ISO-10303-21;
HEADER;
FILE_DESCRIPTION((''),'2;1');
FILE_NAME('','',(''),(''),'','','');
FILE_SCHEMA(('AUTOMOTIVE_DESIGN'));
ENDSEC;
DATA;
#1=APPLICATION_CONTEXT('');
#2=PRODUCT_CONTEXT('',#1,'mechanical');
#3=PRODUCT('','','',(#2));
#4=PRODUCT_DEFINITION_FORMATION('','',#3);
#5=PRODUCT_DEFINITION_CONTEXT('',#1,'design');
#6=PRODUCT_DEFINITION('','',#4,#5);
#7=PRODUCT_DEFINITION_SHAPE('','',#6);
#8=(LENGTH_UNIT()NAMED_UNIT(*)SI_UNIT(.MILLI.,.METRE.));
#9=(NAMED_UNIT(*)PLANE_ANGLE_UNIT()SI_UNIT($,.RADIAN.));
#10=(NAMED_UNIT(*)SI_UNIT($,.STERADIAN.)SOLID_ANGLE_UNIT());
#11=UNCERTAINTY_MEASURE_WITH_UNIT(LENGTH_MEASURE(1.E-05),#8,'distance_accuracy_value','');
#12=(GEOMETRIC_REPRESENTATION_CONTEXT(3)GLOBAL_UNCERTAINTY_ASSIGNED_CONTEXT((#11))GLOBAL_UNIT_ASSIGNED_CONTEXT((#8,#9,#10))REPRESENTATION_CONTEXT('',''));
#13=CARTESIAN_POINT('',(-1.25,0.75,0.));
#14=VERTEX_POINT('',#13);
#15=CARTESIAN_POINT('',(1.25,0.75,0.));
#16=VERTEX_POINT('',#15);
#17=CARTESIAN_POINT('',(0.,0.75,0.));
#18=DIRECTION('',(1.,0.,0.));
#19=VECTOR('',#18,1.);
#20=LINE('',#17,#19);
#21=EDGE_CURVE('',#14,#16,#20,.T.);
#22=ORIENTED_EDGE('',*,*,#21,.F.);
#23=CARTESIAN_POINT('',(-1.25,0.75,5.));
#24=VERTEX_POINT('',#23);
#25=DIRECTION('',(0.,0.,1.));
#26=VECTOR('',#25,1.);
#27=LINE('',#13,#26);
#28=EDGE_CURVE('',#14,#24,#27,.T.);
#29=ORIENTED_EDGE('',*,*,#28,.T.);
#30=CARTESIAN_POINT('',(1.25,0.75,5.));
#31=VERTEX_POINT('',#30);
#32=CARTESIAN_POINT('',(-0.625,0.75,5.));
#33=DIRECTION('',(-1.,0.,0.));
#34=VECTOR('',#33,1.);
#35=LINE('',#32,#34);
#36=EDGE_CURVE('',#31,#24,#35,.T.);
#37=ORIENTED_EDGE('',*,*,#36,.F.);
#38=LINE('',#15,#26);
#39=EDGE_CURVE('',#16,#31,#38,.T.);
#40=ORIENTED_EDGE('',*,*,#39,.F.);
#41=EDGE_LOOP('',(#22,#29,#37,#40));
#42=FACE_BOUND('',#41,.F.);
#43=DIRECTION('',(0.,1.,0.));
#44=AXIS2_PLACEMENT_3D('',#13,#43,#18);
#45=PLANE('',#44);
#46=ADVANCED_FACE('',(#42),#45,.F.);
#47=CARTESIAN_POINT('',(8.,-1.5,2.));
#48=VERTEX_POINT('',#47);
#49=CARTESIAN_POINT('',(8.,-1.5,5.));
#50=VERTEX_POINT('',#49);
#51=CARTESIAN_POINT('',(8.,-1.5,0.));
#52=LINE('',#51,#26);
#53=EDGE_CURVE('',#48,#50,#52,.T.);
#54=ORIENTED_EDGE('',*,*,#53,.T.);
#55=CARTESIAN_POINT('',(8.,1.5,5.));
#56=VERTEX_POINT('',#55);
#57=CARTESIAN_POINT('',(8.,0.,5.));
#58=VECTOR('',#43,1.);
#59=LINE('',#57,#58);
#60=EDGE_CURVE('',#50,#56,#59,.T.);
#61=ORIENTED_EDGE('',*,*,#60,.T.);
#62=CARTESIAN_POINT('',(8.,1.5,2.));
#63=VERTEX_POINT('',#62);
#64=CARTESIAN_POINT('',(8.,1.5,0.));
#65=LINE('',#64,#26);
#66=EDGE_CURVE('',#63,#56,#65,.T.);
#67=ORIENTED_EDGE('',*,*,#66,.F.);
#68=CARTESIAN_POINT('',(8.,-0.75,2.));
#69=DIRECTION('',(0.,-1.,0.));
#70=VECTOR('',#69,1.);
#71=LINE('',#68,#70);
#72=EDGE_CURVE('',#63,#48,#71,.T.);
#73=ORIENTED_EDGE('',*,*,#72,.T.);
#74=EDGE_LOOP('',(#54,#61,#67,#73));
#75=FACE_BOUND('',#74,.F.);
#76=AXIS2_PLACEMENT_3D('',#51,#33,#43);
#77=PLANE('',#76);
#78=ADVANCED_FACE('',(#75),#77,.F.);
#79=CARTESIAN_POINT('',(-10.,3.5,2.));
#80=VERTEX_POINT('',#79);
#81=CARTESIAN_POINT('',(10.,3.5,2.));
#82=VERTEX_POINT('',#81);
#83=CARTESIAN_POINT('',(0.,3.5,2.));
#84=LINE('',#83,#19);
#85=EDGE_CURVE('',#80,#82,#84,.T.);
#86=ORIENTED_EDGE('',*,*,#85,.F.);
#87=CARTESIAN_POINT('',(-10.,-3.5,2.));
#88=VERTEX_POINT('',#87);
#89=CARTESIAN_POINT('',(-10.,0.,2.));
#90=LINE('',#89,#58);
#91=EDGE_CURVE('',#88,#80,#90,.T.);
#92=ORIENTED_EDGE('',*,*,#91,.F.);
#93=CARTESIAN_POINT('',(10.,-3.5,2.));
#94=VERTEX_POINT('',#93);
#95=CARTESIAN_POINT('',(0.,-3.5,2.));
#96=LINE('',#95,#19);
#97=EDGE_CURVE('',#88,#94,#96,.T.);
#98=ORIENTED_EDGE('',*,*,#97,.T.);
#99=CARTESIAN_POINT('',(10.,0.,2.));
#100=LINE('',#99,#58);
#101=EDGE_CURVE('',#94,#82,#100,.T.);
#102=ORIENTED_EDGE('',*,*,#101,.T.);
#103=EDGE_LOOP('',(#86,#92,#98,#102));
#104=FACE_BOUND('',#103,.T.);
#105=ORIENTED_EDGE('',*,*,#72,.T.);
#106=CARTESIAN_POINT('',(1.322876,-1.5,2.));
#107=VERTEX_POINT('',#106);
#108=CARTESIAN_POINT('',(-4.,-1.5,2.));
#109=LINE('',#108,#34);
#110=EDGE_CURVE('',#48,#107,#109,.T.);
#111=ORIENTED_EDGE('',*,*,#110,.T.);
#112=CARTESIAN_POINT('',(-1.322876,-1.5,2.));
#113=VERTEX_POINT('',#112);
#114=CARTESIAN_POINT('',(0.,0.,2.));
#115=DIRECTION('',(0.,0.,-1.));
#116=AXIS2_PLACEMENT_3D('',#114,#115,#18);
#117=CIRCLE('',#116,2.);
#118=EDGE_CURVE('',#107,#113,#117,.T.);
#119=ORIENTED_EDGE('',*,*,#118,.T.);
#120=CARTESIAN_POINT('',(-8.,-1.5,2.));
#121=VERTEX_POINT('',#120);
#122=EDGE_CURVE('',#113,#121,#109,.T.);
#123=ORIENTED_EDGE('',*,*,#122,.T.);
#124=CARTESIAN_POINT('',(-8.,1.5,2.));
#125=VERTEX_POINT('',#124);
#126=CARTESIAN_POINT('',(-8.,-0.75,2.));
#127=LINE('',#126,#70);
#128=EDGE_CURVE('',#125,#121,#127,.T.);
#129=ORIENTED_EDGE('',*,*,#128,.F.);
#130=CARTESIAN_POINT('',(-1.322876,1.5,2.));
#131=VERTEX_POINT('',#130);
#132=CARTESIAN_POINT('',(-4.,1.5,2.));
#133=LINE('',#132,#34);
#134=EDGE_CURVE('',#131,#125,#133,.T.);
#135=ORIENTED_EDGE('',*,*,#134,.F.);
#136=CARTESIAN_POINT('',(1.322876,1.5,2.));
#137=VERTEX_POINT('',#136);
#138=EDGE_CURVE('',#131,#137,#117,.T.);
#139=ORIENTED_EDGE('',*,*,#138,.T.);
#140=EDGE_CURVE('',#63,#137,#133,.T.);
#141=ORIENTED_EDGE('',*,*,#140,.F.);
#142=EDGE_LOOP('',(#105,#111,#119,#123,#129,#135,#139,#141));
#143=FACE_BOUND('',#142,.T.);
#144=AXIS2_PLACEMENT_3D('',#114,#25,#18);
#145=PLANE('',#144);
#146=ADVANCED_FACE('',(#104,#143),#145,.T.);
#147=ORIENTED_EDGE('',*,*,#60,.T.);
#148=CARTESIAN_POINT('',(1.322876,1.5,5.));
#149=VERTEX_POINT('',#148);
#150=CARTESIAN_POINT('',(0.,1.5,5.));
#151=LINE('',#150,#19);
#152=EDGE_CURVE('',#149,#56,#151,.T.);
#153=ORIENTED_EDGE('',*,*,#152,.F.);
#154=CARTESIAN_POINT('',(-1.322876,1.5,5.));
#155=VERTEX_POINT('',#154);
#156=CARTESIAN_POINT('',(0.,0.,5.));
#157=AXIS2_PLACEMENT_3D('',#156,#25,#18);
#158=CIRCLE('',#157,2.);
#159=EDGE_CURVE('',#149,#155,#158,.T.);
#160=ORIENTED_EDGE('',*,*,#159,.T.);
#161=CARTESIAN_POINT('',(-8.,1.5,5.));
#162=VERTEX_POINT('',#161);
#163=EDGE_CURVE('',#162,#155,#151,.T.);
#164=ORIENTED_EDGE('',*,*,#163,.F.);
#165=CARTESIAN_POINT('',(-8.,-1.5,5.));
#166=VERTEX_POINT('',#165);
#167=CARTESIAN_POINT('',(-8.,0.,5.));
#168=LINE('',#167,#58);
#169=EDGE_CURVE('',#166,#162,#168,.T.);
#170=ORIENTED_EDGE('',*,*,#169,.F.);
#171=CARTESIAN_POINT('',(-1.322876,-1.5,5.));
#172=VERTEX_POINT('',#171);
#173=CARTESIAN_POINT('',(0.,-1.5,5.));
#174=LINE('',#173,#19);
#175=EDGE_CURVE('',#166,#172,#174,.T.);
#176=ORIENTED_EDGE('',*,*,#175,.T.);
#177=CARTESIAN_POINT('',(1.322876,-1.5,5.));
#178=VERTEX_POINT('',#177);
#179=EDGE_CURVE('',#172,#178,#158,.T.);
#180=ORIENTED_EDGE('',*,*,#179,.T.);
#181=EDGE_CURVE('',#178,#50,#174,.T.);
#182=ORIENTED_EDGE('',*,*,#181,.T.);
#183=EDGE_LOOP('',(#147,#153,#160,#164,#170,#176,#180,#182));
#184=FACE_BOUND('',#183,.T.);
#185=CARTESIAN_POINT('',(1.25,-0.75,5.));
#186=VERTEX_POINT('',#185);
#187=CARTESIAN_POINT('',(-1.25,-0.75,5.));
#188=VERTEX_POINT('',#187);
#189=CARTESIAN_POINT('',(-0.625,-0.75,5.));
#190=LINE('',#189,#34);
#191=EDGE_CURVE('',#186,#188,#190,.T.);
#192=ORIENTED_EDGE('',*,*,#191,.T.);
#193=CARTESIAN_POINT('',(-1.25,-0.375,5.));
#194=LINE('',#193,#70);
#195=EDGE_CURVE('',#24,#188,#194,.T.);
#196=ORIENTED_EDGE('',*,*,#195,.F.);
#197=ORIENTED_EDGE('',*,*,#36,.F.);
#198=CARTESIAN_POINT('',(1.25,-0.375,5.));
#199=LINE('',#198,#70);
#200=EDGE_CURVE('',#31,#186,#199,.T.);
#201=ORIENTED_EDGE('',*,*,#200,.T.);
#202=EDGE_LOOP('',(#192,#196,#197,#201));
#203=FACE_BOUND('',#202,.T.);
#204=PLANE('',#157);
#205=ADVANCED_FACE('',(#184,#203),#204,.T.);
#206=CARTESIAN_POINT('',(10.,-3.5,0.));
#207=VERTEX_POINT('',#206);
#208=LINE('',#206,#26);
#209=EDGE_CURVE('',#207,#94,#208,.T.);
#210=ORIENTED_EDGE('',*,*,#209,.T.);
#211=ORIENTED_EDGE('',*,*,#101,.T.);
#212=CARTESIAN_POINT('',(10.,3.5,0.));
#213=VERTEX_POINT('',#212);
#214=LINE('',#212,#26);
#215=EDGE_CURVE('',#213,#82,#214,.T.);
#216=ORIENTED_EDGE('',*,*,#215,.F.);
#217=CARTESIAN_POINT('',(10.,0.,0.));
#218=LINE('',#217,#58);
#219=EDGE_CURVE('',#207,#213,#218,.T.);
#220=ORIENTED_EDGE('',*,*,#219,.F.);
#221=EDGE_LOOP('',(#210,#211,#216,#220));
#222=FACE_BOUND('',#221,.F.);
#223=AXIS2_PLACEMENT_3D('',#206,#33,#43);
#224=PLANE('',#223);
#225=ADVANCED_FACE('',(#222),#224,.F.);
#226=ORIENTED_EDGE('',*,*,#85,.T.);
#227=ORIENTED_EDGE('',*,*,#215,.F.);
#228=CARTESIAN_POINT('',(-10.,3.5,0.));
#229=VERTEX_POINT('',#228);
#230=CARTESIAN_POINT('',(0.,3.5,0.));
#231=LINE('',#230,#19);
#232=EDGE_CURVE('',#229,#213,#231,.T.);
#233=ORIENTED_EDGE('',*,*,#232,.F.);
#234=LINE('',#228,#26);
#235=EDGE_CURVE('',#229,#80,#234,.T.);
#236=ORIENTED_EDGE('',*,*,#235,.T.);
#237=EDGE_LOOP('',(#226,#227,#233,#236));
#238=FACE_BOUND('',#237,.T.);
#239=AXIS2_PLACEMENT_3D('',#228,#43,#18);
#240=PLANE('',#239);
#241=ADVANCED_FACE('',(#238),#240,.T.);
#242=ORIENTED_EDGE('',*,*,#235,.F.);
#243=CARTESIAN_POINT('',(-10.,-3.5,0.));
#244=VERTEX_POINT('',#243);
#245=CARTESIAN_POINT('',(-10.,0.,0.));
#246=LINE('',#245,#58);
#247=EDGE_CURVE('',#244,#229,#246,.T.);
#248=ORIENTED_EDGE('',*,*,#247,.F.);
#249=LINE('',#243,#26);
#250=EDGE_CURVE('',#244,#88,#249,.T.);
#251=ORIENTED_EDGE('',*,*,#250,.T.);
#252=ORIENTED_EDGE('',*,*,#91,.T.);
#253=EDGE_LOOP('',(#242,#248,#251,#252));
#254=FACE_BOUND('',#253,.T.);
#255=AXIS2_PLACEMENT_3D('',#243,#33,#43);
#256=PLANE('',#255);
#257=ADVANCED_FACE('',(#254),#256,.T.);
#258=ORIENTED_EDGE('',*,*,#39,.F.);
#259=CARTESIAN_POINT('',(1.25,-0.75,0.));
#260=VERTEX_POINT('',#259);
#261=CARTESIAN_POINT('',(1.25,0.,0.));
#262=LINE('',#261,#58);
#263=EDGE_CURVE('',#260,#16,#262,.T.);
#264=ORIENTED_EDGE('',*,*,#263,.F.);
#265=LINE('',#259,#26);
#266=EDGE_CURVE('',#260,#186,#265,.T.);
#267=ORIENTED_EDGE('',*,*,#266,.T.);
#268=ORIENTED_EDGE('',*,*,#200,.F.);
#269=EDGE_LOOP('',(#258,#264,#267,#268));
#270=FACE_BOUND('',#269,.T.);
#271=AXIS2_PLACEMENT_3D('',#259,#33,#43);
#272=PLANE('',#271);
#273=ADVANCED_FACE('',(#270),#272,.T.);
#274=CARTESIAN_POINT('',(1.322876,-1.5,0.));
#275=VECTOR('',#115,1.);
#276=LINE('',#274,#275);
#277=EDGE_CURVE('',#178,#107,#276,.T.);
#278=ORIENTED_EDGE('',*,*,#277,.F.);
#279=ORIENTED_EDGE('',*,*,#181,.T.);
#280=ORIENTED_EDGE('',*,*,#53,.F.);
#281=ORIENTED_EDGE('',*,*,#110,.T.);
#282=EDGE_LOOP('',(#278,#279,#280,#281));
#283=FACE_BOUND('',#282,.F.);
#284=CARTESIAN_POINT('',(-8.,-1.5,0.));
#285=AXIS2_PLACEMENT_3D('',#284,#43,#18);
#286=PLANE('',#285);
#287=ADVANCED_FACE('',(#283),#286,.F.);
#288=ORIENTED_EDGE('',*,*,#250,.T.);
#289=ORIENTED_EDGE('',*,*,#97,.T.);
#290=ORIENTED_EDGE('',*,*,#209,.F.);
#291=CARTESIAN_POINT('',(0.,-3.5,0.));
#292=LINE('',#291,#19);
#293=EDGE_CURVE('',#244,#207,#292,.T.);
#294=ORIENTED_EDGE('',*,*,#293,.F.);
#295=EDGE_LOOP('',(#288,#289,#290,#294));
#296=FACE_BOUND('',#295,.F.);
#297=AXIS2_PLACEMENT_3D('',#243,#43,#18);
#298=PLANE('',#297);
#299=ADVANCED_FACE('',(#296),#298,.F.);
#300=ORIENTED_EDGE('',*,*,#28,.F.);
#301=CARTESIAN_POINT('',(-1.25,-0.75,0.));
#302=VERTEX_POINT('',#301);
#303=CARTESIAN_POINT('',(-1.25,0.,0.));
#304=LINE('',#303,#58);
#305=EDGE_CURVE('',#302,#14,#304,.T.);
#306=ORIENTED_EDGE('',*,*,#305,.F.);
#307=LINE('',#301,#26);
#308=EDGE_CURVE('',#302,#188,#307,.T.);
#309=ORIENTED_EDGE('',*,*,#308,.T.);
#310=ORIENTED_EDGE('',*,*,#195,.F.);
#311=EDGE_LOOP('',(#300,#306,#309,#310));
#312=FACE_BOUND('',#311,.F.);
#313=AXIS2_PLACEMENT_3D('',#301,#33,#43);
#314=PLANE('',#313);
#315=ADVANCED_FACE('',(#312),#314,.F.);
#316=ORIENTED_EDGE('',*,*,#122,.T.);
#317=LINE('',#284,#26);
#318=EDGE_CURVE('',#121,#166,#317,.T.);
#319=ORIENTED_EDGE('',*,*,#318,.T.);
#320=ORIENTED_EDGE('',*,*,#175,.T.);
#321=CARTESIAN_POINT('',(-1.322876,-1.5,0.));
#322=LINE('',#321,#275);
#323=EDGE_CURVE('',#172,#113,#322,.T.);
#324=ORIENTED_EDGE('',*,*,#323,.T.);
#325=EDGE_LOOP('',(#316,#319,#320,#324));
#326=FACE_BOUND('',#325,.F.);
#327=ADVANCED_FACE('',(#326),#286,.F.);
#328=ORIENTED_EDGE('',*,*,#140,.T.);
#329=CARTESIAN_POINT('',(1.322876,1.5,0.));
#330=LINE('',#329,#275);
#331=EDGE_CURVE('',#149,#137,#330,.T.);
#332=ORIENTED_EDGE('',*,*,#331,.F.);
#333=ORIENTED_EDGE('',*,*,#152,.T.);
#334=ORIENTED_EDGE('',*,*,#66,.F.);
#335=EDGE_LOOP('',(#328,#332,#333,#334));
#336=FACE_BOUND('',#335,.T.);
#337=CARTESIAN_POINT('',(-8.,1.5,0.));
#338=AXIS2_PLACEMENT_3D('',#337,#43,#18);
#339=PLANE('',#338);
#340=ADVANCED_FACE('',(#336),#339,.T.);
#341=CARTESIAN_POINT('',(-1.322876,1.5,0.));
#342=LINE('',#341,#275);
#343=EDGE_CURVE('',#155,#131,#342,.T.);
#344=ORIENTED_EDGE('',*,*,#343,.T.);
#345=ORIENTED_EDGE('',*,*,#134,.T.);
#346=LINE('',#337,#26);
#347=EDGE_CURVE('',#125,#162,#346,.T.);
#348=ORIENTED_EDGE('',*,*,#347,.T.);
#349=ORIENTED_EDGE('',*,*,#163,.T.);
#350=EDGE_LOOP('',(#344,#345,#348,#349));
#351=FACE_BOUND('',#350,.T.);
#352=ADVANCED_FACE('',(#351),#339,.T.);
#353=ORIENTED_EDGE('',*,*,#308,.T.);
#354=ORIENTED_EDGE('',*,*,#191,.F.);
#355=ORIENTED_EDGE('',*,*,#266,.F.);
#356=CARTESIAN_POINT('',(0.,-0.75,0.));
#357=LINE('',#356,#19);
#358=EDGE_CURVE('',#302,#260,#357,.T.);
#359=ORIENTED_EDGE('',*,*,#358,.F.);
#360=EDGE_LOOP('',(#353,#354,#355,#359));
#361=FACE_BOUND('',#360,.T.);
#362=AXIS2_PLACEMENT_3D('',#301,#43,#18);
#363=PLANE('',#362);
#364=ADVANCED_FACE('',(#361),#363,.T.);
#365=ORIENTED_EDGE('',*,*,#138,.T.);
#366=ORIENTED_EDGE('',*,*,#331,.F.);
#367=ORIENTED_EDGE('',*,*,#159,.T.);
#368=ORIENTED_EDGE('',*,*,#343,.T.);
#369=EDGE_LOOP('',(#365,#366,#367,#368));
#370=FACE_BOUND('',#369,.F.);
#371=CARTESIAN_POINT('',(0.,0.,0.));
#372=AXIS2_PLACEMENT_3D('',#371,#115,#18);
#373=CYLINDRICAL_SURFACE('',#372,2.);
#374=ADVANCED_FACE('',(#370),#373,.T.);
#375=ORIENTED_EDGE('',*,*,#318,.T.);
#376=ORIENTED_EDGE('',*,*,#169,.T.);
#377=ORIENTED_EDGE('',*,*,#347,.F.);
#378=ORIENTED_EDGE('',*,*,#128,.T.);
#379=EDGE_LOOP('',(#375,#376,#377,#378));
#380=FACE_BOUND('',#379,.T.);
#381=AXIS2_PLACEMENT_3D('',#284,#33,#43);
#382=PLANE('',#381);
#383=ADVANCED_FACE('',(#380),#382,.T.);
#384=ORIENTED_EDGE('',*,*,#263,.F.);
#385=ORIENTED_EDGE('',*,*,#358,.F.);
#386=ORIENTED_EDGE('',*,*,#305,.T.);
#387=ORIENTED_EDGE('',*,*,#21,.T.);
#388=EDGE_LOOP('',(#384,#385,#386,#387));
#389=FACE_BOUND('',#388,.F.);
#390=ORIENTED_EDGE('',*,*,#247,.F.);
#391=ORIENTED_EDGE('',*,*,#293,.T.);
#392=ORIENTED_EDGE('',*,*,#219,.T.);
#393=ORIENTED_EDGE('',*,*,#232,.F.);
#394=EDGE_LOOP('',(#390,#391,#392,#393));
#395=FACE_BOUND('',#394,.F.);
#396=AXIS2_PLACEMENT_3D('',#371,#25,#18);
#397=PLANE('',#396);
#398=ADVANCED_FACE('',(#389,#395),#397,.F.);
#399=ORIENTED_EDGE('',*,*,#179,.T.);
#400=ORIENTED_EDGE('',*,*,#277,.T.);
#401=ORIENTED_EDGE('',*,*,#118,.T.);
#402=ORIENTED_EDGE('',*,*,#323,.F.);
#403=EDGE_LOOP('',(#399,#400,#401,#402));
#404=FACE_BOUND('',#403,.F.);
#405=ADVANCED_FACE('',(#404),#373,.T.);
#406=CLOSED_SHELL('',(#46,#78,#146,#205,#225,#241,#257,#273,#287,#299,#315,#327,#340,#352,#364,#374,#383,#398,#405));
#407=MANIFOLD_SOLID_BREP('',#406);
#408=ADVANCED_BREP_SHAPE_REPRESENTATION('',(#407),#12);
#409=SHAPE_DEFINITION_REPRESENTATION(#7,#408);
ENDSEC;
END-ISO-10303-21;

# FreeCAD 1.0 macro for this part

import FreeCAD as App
import Part
import Sketcher

V = App.Vector
Q = App.Units.Quantity


def add_polygon(sketch, points):
    """Adds a closed chain of lines whose ends are joined by coincident constraints."""
    first, n = sketch.GeometryCount, len(points)
    for a, b in zip(points, points[1:] + points[:1]):
        sketch.addGeometry(Part.LineSegment(App.Vector(*a, 0), App.Vector(*b, 0)), False)
    for i in range(n):
        sketch.addConstraint(Sketcher.Constraint("Coincident", first + i, 2, first + (i + 1) % n, 1))

doc = App.newDocument("Part")
body = doc.addObject("PartDesign::Body", "Body")

# Sketch on XY plane
sketch1 = body.newObject("Sketcher::SketchObject", "Sketch")
sketch1.AttachmentSupport = (doc.getObject("XY_Plane"), [""])
sketch1.MapMode = "FlatFace"
add_polygon(sketch1, [(-1.2, 0.8), (-1.2, -0.8), (1.2, -0.8), (1.2, 0.8)])  # lines 0-3
sketch1.addConstraint([
    Sketcher.Constraint("Vertical", 0),
    Sketcher.Constraint("Horizontal", 1),
    Sketcher.Constraint("Vertical", 2),
    Sketcher.Constraint("Horizontal", 3),
    Sketcher.Constraint("Symmetric", 0, 2, 2, 2, -1, 1),
    Sketcher.Constraint("DistanceX", 1, 1, 1, 2, Q("2.5 mm")),
    Sketcher.Constraint("DistanceY", 0, 2, 0, 1, Q("1.5 mm")),
])
pad1 = body.newObject("PartDesign::Pad", "Pad")
pad1.Profile = sketch1
pad1.Length = 10
body2 = doc.addObject("PartDesign::Body", "Body001")

# Sketch on XY plane
sketch2 = body2.newObject("Sketcher::SketchObject", "Sketch001")
sketch2.AttachmentSupport = (doc.getObject("XY_Plane001"), [""])
sketch2.MapMode = "FlatFace"
add_polygon(sketch2, [(-8, 1.5), (-8, -1.5), (8, -1.5), (8, 1.5)])  # lines 0-3
sketch2.addConstraint([
    Sketcher.Constraint("Vertical", 0),
    Sketcher.Constraint("Horizontal", 1),
    Sketcher.Constraint("Vertical", 2),
    Sketcher.Constraint("Horizontal", 3),
    Sketcher.Constraint("Symmetric", 0, 2, 2, 2, -1, 1),
    Sketcher.Constraint("DistanceX", 1, 1, 1, 2, Q("16 mm")),
    Sketcher.Constraint("DistanceY", 0, 2, 0, 1, Q("3 mm")),
])
pad2 = body2.newObject("PartDesign::Pad", "Pad001")
pad2.Profile = sketch2
pad2.Length = 5
body3 = doc.addObject("PartDesign::Body", "Body002")

# Sketch on XY plane
sketch3 = body3.newObject("Sketcher::SketchObject", "Sketch002")
sketch3.AttachmentSupport = (doc.getObject("XY_Plane002"), [""])
sketch3.MapMode = "FlatFace"
sketch3.addGeometry(Part.Circle(V(0, 0, 0), V(0, 0, 1), 2), False)
sketch3.addConstraint([
    Sketcher.Constraint("Coincident", 0, 3, -1, 1),
    Sketcher.Constraint("Diameter", 0, Q("4 mm")),
])
pad3 = body3.newObject("PartDesign::Pad", "Pad002")
pad3.Profile = sketch3
pad3.Length = 5
doc.recompute()

boolean = body3.newObject("PartDesign::Boolean", "Boolean")
boolean.Type = "Fuse"
boolean.addObjects([body2])
body4 = doc.addObject("PartDesign::Body", "Body003")

# Sketch on XY plane
sketch4 = body4.newObject("Sketcher::SketchObject", "Sketch003")
sketch4.AttachmentSupport = (doc.getObject("XY_Plane003"), [""])
sketch4.MapMode = "FlatFace"
add_polygon(sketch4, [(-10, 4), (-10, -4), (10, -4), (10, 4)])  # lines 0-3
sketch4.addConstraint([
    Sketcher.Constraint("Vertical", 0),
    Sketcher.Constraint("Horizontal", 1),
    Sketcher.Constraint("Vertical", 2),
    Sketcher.Constraint("Horizontal", 3),
    Sketcher.Constraint("Symmetric", 0, 2, 2, 2, -1, 1),
    Sketcher.Constraint("DistanceX", 1, 1, 1, 2, Q("20 mm")),
    Sketcher.Constraint("DistanceY", 0, 2, 0, 1, Q("7 mm")),
])
pad4 = body4.newObject("PartDesign::Pad", "Pad003")
pad4.Profile = sketch4
pad4.Length = 2
doc.recompute()

boolean2 = body4.newObject("PartDesign::Boolean", "Boolean001")
boolean2.Type = "Fuse"
boolean2.addObjects([body3])
doc.recompute()

boolean3 = body4.newObject("PartDesign::Boolean", "Boolean002")
boolean3.Type = "Cut"
boolean3.addObjects([body])

doc.recompute()
